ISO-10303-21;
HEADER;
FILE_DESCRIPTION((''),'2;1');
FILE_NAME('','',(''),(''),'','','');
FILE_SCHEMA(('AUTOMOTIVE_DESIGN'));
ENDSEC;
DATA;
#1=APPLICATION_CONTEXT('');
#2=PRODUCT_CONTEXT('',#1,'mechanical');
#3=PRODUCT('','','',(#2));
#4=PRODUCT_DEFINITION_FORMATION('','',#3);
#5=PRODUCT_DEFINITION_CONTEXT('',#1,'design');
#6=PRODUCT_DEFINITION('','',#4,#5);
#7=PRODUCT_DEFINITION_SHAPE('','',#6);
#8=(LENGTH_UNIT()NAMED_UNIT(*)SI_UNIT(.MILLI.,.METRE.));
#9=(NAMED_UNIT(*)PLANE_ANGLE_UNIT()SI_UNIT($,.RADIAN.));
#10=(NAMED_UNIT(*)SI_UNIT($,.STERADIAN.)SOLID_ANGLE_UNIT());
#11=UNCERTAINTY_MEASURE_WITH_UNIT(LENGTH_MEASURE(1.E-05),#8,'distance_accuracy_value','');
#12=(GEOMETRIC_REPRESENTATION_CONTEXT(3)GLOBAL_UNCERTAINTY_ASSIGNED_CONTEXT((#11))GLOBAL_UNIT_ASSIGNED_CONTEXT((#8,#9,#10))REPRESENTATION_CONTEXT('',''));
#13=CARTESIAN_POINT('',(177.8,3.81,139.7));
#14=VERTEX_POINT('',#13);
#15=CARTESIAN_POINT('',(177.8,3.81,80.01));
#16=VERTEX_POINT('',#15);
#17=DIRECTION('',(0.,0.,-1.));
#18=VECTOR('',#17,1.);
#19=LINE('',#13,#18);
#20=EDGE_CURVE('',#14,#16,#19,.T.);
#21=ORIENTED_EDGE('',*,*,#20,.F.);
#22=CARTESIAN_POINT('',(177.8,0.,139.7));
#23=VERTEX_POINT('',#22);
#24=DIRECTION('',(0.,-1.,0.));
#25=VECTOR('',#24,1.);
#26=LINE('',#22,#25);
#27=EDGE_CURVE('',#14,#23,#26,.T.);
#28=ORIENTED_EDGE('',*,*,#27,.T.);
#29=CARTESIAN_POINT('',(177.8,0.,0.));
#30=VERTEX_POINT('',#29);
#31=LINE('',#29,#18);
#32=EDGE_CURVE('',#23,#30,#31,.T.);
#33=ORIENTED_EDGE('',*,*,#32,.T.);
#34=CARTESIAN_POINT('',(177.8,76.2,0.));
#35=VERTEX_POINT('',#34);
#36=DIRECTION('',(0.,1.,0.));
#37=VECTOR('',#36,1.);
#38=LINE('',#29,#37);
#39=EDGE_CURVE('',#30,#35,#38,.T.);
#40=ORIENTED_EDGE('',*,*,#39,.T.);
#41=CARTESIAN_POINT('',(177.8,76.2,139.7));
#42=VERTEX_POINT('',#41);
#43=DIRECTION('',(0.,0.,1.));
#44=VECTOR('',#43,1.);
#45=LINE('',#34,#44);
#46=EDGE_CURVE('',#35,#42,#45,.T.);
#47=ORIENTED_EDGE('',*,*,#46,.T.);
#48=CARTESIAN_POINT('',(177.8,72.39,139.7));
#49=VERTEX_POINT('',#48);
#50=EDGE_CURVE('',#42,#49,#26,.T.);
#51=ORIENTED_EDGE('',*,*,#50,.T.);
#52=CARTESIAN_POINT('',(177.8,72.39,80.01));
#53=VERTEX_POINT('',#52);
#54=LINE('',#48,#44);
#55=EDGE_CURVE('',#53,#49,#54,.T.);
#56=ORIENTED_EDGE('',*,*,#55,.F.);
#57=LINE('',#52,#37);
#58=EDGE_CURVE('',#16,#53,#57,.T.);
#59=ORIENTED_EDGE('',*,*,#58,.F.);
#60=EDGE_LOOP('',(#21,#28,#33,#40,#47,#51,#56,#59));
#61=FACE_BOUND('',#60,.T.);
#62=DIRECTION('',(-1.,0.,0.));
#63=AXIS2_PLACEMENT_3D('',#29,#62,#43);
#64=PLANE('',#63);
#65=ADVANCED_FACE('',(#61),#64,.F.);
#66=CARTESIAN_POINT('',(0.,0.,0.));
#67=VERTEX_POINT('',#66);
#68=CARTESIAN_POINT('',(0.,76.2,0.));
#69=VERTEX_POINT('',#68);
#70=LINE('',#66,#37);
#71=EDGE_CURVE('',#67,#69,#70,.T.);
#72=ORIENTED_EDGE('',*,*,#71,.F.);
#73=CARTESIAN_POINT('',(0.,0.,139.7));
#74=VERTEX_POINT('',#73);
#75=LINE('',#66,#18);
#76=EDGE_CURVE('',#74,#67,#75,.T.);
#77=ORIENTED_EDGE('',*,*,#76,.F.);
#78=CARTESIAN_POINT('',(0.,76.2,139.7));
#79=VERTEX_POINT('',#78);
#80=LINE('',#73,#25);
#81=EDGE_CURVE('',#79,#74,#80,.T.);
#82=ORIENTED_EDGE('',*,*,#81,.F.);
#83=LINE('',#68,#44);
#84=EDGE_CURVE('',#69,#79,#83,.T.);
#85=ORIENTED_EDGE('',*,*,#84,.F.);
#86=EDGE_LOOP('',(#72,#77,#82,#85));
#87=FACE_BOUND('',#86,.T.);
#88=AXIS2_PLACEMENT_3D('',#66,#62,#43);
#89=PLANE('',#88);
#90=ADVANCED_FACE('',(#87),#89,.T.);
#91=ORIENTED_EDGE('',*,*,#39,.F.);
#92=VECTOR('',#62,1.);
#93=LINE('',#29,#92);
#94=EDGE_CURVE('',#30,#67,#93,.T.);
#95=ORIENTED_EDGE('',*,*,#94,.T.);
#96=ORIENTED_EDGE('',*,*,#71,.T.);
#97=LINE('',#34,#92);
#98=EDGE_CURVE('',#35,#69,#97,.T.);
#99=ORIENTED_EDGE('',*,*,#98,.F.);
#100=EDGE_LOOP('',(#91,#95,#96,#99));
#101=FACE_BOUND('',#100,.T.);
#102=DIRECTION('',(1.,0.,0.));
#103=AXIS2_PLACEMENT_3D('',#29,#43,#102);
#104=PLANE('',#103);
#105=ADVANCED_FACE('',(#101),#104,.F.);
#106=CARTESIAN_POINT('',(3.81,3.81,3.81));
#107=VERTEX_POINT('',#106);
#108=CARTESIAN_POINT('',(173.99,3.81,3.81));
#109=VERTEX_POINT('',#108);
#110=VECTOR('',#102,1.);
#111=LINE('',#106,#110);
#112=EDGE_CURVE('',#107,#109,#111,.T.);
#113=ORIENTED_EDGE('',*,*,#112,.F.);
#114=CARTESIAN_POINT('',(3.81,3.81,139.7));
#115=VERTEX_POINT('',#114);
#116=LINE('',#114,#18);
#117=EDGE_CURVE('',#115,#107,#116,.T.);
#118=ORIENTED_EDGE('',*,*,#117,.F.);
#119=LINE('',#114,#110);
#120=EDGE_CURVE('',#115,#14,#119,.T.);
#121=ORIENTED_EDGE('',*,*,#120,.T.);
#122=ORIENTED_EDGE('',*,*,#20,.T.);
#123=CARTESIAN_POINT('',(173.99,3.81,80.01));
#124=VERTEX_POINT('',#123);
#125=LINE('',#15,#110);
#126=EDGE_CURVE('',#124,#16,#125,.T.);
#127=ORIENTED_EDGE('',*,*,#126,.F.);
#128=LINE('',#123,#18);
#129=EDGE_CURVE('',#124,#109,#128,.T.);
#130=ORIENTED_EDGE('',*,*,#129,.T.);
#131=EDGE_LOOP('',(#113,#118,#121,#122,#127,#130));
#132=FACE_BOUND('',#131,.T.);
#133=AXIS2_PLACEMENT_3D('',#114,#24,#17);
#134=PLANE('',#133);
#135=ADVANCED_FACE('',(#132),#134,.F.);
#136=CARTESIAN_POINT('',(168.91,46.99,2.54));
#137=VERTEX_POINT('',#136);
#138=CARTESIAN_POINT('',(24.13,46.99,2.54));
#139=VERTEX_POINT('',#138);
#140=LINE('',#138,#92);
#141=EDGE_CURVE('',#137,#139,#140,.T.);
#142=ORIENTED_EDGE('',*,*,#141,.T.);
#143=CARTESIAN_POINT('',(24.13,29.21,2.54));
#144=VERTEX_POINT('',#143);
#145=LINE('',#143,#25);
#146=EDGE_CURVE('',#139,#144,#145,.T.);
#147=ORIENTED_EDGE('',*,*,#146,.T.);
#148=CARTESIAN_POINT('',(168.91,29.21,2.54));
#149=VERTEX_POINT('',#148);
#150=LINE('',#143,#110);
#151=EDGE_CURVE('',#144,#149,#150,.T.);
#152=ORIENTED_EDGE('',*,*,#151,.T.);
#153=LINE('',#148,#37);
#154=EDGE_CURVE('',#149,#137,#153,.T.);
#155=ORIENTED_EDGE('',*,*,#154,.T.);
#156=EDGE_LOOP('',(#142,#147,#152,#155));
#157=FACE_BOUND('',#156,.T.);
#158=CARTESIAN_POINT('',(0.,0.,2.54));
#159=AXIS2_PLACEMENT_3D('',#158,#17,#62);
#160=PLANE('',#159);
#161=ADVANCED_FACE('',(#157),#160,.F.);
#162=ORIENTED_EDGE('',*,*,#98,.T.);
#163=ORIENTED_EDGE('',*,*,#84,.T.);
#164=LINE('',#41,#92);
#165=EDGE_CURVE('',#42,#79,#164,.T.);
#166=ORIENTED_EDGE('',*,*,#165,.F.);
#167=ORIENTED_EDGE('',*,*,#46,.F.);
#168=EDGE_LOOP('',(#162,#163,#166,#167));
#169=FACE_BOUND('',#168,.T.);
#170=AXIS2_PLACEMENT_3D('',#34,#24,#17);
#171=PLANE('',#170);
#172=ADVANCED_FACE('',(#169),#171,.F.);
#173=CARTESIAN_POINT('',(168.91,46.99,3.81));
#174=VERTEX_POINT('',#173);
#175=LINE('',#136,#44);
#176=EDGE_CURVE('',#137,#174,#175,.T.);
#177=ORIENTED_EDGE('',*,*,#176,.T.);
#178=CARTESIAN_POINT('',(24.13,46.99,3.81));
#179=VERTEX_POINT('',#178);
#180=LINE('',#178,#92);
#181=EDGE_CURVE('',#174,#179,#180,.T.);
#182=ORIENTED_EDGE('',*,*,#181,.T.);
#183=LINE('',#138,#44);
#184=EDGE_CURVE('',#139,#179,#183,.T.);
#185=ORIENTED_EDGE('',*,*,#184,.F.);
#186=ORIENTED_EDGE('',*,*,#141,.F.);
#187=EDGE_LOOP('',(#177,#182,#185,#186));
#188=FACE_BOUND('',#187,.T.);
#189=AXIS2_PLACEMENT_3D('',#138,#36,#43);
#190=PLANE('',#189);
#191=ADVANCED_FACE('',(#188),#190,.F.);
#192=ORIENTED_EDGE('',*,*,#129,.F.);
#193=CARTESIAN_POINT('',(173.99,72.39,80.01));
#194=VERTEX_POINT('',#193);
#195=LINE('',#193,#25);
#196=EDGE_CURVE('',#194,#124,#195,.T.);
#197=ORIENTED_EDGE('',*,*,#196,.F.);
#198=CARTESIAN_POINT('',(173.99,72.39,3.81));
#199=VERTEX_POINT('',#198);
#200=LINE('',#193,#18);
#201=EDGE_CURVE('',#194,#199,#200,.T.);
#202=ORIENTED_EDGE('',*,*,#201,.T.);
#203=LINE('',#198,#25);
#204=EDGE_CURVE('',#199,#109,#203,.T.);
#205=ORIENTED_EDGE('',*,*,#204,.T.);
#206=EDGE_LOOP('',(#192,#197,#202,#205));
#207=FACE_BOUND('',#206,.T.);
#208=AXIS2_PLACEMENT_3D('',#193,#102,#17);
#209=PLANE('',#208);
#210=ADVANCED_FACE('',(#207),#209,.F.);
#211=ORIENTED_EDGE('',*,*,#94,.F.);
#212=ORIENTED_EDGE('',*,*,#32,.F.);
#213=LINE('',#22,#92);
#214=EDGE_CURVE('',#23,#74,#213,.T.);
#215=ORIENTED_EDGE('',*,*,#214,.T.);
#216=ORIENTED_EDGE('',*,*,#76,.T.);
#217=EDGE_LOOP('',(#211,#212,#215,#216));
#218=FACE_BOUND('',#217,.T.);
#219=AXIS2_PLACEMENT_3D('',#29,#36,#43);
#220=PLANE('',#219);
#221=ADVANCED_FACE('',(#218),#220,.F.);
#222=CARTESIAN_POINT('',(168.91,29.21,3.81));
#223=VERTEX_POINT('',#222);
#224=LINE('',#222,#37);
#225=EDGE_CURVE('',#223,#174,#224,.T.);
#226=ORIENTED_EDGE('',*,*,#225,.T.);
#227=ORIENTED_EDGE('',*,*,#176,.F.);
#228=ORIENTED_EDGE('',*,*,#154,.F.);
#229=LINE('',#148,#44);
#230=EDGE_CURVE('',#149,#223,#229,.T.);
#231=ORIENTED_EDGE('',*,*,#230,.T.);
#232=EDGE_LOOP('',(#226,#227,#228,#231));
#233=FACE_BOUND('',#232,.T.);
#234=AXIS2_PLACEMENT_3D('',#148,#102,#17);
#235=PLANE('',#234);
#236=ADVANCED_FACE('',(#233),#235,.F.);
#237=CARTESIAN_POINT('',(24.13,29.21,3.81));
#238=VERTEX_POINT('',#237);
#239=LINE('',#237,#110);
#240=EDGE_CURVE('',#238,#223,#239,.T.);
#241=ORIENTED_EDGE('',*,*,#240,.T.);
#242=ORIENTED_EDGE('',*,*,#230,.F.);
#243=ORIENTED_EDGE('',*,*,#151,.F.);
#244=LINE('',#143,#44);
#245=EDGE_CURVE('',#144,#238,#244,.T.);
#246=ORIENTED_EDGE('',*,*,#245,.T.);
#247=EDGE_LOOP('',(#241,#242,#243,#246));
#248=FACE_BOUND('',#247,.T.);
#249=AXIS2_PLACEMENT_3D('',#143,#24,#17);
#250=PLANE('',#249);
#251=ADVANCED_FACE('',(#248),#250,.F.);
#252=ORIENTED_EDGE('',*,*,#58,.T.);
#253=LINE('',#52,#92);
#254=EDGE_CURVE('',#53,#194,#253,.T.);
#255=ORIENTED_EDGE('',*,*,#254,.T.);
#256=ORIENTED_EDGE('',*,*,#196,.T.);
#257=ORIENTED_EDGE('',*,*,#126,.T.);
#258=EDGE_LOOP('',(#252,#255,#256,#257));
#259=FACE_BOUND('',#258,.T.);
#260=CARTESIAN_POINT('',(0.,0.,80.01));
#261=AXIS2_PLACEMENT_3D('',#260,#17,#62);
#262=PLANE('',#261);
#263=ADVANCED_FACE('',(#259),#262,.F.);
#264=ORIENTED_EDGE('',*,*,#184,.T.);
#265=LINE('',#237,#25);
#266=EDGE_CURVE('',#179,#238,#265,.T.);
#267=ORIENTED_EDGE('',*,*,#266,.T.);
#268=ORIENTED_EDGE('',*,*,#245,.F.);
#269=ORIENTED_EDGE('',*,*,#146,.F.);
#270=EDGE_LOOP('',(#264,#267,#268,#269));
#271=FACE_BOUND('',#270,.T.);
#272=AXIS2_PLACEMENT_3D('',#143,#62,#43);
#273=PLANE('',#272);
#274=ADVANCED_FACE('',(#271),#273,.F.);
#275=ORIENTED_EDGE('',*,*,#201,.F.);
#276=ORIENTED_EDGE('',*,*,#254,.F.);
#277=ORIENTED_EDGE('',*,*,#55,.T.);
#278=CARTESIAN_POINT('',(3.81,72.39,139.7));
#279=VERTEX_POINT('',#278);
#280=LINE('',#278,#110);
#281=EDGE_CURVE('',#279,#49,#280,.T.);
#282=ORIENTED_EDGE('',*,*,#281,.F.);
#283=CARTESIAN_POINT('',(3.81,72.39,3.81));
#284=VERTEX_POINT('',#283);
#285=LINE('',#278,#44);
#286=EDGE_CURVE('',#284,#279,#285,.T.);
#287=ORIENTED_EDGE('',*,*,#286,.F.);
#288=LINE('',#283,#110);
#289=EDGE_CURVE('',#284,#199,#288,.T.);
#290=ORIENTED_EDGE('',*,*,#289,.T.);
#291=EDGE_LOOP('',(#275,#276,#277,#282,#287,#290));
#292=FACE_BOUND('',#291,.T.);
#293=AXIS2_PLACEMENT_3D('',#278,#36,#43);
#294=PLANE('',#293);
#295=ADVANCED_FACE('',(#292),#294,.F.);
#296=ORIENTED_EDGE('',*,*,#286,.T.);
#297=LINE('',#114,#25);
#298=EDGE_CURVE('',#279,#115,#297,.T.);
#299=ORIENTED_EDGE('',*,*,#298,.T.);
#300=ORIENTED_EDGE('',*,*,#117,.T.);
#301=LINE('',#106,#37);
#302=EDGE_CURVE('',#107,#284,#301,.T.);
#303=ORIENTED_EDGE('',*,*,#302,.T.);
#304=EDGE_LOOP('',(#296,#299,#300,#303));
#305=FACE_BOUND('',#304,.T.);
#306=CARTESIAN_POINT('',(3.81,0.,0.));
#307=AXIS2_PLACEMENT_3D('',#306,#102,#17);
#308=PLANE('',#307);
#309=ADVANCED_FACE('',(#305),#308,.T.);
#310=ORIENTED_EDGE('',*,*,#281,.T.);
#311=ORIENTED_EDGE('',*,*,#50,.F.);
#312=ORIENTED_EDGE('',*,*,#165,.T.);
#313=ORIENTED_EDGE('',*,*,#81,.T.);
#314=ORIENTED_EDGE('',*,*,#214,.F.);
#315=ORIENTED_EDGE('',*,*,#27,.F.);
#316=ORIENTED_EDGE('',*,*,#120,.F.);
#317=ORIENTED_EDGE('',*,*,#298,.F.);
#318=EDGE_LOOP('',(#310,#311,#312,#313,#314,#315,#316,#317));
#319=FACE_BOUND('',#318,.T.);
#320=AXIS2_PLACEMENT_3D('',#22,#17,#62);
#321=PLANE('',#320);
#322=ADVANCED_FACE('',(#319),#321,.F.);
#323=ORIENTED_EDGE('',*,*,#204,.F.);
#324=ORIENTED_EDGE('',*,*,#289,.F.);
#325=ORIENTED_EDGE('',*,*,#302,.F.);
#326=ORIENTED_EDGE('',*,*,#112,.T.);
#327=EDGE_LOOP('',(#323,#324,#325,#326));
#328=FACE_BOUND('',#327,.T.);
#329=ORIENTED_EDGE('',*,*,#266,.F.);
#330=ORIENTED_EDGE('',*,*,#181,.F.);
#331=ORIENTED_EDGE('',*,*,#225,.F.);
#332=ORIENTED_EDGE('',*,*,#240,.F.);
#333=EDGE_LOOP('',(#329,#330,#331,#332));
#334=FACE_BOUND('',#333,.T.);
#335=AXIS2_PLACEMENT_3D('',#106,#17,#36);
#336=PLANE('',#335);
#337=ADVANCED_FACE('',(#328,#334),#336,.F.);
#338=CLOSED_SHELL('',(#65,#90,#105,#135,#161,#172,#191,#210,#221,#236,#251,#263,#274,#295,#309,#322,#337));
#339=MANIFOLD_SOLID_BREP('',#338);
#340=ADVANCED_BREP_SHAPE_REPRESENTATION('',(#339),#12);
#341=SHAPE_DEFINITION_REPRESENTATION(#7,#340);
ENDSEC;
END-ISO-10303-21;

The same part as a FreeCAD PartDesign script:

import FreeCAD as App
import Part
import Sketcher
Q = App.Units.Quantity

doc = App.newDocument("Part")
body = doc.addObject("PartDesign::Body", "Body")

# Sketch on YZ plane
sketch1 = doc.addObject("Sketcher::SketchObject", "Sketch")
body.addObject(sketch1)
sketch1.AttachmentSupport = (doc.YZ_Plane, [""])
sketch1.MapMode = "FlatFace"
sketch1.addGeometry(Part.LineSegment(App.Vector(0, 140, 0), App.Vector(0, 0, 0)), False)
sketch1.addGeometry(Part.LineSegment(App.Vector(0, 0, 0), App.Vector(76, 0, 0)), False)
sketch1.addGeometry(Part.LineSegment(App.Vector(76, 0, 0), App.Vector(76, 140, 0)), False)
sketch1.addGeometry(Part.LineSegment(App.Vector(76, 140, 0), App.Vector(0, 140, 0)), False)
sketch1.addConstraint(Sketcher.Constraint("Coincident", 0, 2, 1, 1))
sketch1.addConstraint(Sketcher.Constraint("Coincident", 1, 2, 2, 1))
sketch1.addConstraint(Sketcher.Constraint("Coincident", 2, 2, 3, 1))
sketch1.addConstraint(Sketcher.Constraint("Coincident", 3, 2, 0, 1))
sketch1.addConstraint(Sketcher.Constraint("Vertical", 0))
sketch1.addConstraint(Sketcher.Constraint("Horizontal", 1))
sketch1.addConstraint(Sketcher.Constraint("Vertical", 2))
sketch1.addConstraint(Sketcher.Constraint("Horizontal", 3))
sketch1.addConstraint(Sketcher.Constraint("Coincident", 0, 2, -1, 1))
sketch1.addConstraint(Sketcher.Constraint("DistanceX", 1, 1, 1, 2, Q("3 in")))
sketch1.addConstraint(Sketcher.Constraint("DistanceY", 0, 2, 0, 1, Q("5.5 in")))
pad1 = doc.addObject("PartDesign::Pad", "Pad")
body.addObject(pad1)
pad1.Profile = sketch1
pad1.Length = Q("7 in")

# Sketch on YZ plane
sketch2 = doc.addObject("Sketcher::SketchObject", "Sketch001")
body.addObject(sketch2)
sketch2.AttachmentSupport = (doc.YZ_Plane, [""])
sketch2.MapMode = "FlatFace"
sketch2.AttachmentOffset = App.Placement(App.Vector(0, 0, 7 * 25.4), App.Rotation())
sketch2.addGeometry(Part.LineSegment(App.Vector(4, 140, 0), App.Vector(4, 4, 0)), False)
sketch2.addGeometry(Part.LineSegment(App.Vector(4, 4, 0), App.Vector(72, 4, 0)), False)
sketch2.addGeometry(Part.LineSegment(App.Vector(72, 4, 0), App.Vector(72, 140, 0)), False)
sketch2.addGeometry(Part.LineSegment(App.Vector(72, 140, 0), App.Vector(4, 140, 0)), False)
sketch2.addConstraint(Sketcher.Constraint("Coincident", 0, 2, 1, 1))
sketch2.addConstraint(Sketcher.Constraint("Coincident", 1, 2, 2, 1))
sketch2.addConstraint(Sketcher.Constraint("Coincident", 2, 2, 3, 1))
sketch2.addConstraint(Sketcher.Constraint("Coincident", 3, 2, 0, 1))
sketch2.addConstraint(Sketcher.Constraint("Vertical", 0))
sketch2.addConstraint(Sketcher.Constraint("Horizontal", 1))
sketch2.addConstraint(Sketcher.Constraint("Vertical", 2))
sketch2.addConstraint(Sketcher.Constraint("Horizontal", 3))
sketch2.addConstraint(Sketcher.Constraint("DistanceX", 1, 1, 1, 2, Q("2.7 in")))
sketch2.addConstraint(Sketcher.Constraint("DistanceY", 0, 2, 0, 1, Q("5.35 in")))
sketch2.addConstraint(Sketcher.Constraint("DistanceY", -1, 1, 2, 2, Q("5.5 in")))
sketch2.addConstraint(Sketcher.Constraint("DistanceX", -1, 1, 0, 2, Q("0.15 in")))
pocket1 = doc.addObject("PartDesign::Pocket", "Pocket")
body.addObject(pocket1)
pocket1.Profile = sketch2
pocket1.Length = Q("6.85 in")

# Sketch on XY plane
sketch3 = doc.addObject("Sketcher::SketchObject", "Sketch002")
body.addObject(sketch3)
sketch3.AttachmentSupport = (doc.XY_Plane, [""])
sketch3.MapMode = "FlatFace"
sketch3.AttachmentOffset = App.Placement(App.Vector(0, 0, 0.15 * 25.4), App.Rotation())
sketch3.addGeometry(Part.LineSegment(App.Vector(24, 47, 0), App.Vector(24, 29, 0)), False)
sketch3.addGeometry(Part.LineSegment(App.Vector(24, 29, 0), App.Vector(169, 29, 0)), False)
sketch3.addGeometry(Part.LineSegment(App.Vector(169, 29, 0), App.Vector(169, 47, 0)), False)
sketch3.addGeometry(Part.LineSegment(App.Vector(169, 47, 0), App.Vector(24, 47, 0)), False)
sketch3.addConstraint(Sketcher.Constraint("Coincident", 0, 2, 1, 1))
sketch3.addConstraint(Sketcher.Constraint("Coincident", 1, 2, 2, 1))
sketch3.addConstraint(Sketcher.Constraint("Coincident", 2, 2, 3, 1))
sketch3.addConstraint(Sketcher.Constraint("Coincident", 3, 2, 0, 1))
sketch3.addConstraint(Sketcher.Constraint("Vertical", 0))
sketch3.addConstraint(Sketcher.Constraint("Horizontal", 1))
sketch3.addConstraint(Sketcher.Constraint("Vertical", 2))
sketch3.addConstraint(Sketcher.Constraint("Horizontal", 3))
sketch3.addConstraint(Sketcher.Constraint("DistanceX", 1, 1, 1, 2, Q("5.7 in")))
sketch3.addConstraint(Sketcher.Constraint("DistanceY", 0, 2, 0, 1, Q("0.7 in")))
sketch3.addConstraint(Sketcher.Constraint("DistanceX", -1, 1, 0, 2, Q("0.95 in")))
sketch3.addConstraint(Sketcher.Constraint("DistanceY", -1, 1, 0, 2, Q("1.15 in")))
pocket2 = doc.addObject("PartDesign::Pocket", "Pocket001")
body.addObject(pocket2)
pocket2.Profile = sketch3
pocket2.Length = Q("0.05 in")

# Sketch on XY plane
sketch4 = doc.addObject("Sketcher::SketchObject", "Sketch003")
body.addObject(sketch4)
sketch4.AttachmentSupport = (doc.XY_Plane, [""])
sketch4.MapMode = "FlatFace"
sketch4.AttachmentOffset = App.Placement(App.Vector(0, 0, 0.15 * 25.4), App.Rotation())
sketch4.addGeometry(Part.LineSegment(App.Vector(174, 72.4, 0), App.Vector(174, 3.8, 0)), False)
sketch4.addGeometry(Part.LineSegment(App.Vector(174, 3.8, 0), App.Vector(177.8, 3.8, 0)), False)
sketch4.addGeometry(Part.LineSegment(App.Vector(177.8, 3.8, 0), App.Vector(177.8, 72.4, 0)), False)
sketch4.addGeometry(Part.LineSegment(App.Vector(177.8, 72.4, 0), App.Vector(174, 72.4, 0)), False)
sketch4.addConstraint(Sketcher.Constraint("Coincident", 0, 2, 1, 1))
sketch4.addConstraint(Sketcher.Constraint("Coincident", 1, 2, 2, 1))
sketch4.addConstraint(Sketcher.Constraint("Coincident", 2, 2, 3, 1))
sketch4.addConstraint(Sketcher.Constraint("Coincident", 3, 2, 0, 1))
sketch4.addConstraint(Sketcher.Constraint("Vertical", 0))
sketch4.addConstraint(Sketcher.Constraint("Horizontal", 1))
sketch4.addConstraint(Sketcher.Constraint("Vertical", 2))
sketch4.addConstraint(Sketcher.Constraint("Horizontal", 3))
sketch4.addConstraint(Sketcher.Constraint("DistanceY", 0, 2, 0, 1, Q("2.7 in")))
sketch4.addConstraint(Sketcher.Constraint("DistanceX", -1, 1, 1, 2, Q("7 in")))
sketch4.addConstraint(Sketcher.Constraint("DistanceX", 1, 1, 1, 2, Q("0.15 in")))
sketch4.addConstraint(Sketcher.Constraint("DistanceY", -1, 1, 0, 2, Q("0.15 in")))
pad2 = doc.addObject("PartDesign::Pad", "Pad001")
body.addObject(pad2)
pad2.Profile = sketch4
pad2.Length = Q("3 in")

doc.recompute()
